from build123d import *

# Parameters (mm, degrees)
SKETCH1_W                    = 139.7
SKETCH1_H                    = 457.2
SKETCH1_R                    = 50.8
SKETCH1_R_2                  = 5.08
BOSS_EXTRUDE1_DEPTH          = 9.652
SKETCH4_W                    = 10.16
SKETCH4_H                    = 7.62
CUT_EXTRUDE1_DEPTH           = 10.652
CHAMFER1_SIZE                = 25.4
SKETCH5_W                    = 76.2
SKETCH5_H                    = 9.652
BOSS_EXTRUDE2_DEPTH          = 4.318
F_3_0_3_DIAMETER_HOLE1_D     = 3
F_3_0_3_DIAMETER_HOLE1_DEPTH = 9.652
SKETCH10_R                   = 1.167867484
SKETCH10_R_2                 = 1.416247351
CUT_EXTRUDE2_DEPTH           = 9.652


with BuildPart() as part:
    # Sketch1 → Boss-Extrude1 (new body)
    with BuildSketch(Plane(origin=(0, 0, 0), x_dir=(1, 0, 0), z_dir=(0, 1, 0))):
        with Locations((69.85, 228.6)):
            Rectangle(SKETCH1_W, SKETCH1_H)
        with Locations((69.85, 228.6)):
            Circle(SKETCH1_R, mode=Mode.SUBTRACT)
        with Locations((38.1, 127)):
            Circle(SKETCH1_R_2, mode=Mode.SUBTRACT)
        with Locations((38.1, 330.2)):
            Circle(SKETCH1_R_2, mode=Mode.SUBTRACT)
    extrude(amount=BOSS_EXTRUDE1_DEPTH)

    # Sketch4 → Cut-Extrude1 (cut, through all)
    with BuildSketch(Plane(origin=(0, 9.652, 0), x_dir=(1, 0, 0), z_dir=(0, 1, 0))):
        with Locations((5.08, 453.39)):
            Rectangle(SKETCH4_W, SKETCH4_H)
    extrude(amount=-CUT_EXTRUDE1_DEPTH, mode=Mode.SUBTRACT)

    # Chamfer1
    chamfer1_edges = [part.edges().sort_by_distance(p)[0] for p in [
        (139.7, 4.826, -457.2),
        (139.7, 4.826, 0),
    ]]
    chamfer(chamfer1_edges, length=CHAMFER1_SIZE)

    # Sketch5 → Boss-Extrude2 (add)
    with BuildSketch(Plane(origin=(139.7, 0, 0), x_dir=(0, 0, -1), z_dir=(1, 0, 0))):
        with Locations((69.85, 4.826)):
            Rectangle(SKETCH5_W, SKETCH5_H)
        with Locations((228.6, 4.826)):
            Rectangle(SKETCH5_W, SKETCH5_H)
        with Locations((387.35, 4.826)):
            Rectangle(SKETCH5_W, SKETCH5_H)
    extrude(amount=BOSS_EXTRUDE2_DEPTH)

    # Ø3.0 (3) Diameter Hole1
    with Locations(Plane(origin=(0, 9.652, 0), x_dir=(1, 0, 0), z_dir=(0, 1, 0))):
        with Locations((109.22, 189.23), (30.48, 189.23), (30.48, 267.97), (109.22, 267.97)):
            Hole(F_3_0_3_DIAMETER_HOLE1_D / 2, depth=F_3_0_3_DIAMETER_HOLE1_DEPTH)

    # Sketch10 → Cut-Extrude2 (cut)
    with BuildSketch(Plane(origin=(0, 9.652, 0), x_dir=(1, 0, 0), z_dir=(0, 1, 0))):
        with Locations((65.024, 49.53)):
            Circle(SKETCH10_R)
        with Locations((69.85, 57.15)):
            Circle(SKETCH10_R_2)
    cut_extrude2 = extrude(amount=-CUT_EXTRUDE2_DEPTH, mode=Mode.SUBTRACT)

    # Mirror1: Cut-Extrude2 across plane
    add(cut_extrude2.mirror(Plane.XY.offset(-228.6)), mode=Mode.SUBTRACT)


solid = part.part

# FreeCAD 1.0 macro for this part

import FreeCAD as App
import Part
import Sketcher

V = App.Vector
Q = App.Units.Quantity


def edges_at(feature, points):
    """Names of the edges that pass closest to the given points."""
    edges = feature.Shape.Edges
    near = lambda p: min(range(len(edges)), key=lambda i: edges[i].distToShape(Part.Vertex(*p))[0])
    return sorted({f"Edge{near(p) + 1}" for p in points})

doc = App.newDocument("Part")
params = doc.addObject("Spreadsheet::Sheet", "Params")
for row, (alias, value) in enumerate([
    ("sketch1_diameter", "4 in"),
    ("sketch1_diameter2", "0.4 in"),
    ("sketch1_height", "18 in"),
    ("sketch1_width", "5.5 in"),
    ("pad1_length", "0.38 in"),
    ("sketch2_width", "0.4 in"),
    ("sketch2_height", "0.3 in"),
    ("chamfer_size", "1 in"),
    ("sketch3_height", "3 in"),
    ("sketch3_width", "0.38 in"),
    ("pad2_length", "0.17 in"),
    ("hole_diameter", "3 mm"),
    ("hole_depth", "0.38 in"),
    ("pocket2_length", "0.38 in"),
], start=1):
    params.set(f"A{row}", alias)
    params.set(f"B{row}", "=" + value)
    params.setAlias(f"B{row}", alias)

body = doc.addObject("PartDesign::Body", "Body")

# Sketch on XZ plane
sketch1 = body.newObject("Sketcher::SketchObject", "Sketch")
sketch1.AttachmentSupport = (doc.getObject("XZ_Plane"), [""])
sketch1.MapMode = "FlatFace"
sketch1.addGeometry([
    Part.LineSegment(V(0, -457, 0), V(0, 0, 0)),  # 0
    Part.LineSegment(V(0, 0, 0), V(140, 0, 0)),  # 1
    Part.LineSegment(V(140, 0, 0), V(140, -457, 0)),  # 2
    Part.LineSegment(V(140, -457, 0), V(0, -457, 0)),  # 3
    Part.Circle(V(38, -127, 0), V(0, 0, 1), 5),  # 4
    Part.Circle(V(70, -229, 0), V(0, 0, 1), 51),  # 5
    Part.Circle(V(38, -330, 0), V(0, 0, 1), 5),  # 6
], False)
sketch1.addConstraint([
    Sketcher.Constraint("Coincident", 0, 2, 1, 1),
    Sketcher.Constraint("Coincident", 1, 2, 2, 1),
    Sketcher.Constraint("Coincident", 2, 2, 3, 1),
    Sketcher.Constraint("Coincident", 3, 2, 0, 1),
    Sketcher.Constraint("Vertical", 0),
    Sketcher.Constraint("Horizontal", 1),
    Sketcher.Constraint("Vertical", 2),
    Sketcher.Constraint("Horizontal", 3),
    Sketcher.Constraint("Coincident", 0, 2, -1, 1),
    Sketcher.Constraint("Equal", 4, 6),
    Sketcher.Constraint("Vertical", 4, 3, 6, 3),
    Sketcher.Constraint("Diameter", 5, Q("4 in")),
    Sketcher.Constraint("Diameter", 4, Q("0.4 in")),
    Sketcher.Constraint("DistanceY", 0, 1, 0, 2, Q("18 in")),
    Sketcher.Constraint("DistanceX", 1, 1, 1, 2, Q("5.5 in")),
    Sketcher.Constraint("DistanceY", 4, 3, -1, 1, Q("5 in")),
    Sketcher.Constraint("DistanceY", 5, 3, -1, 1, Q("9 in")),
    Sketcher.Constraint("DistanceY", 6, 3, -1, 1, Q("13 in")),
    Sketcher.Constraint("DistanceX", 4, 3, 1, 2, Q("4 in")),
    Sketcher.Constraint("DistanceX", -1, 1, 5, 3, Q("2.75 in")),
])
sketch1.setExpression("Constraints[11]", "Params.sketch1_diameter")
sketch1.setExpression("Constraints[12]", "Params.sketch1_diameter2")
sketch1.setExpression("Constraints[13]", "Params.sketch1_height")
sketch1.setExpression("Constraints[14]", "Params.sketch1_width")
pad1 = body.newObject("PartDesign::Pad", "Pad")
pad1.Profile = sketch1
pad1.setExpression("Length", "Params.pad1_length")
pad1.Reversed = True

# Sketch on XZ plane
sketch2 = body.newObject("Sketcher::SketchObject", "Sketch001")
sketch2.AttachmentSupport = (doc.getObject("XZ_Plane"), [""])
sketch2.MapMode = "FlatFace"
sketch2.AttachmentOffset = App.Placement(V(0, 0, -0.38 * 25.4), App.Rotation())
sketch2.addGeometry([
    Part.LineSegment(V(0, -457, 0), V(0, -450, 0)),
    Part.LineSegment(V(0, -450, 0), V(10, -450, 0)),
    Part.LineSegment(V(10, -450, 0), V(10, -457, 0)),
    Part.LineSegment(V(10, -457, 0), V(0, -457, 0)),
], False)
sketch2.addConstraint([
    Sketcher.Constraint("Coincident", 0, 2, 1, 1),
    Sketcher.Constraint("Coincident", 1, 2, 2, 1),
    Sketcher.Constraint("Coincident", 2, 2, 3, 1),
    Sketcher.Constraint("Coincident", 3, 2, 0, 1),
    Sketcher.Constraint("Vertical", 0),
    Sketcher.Constraint("Horizontal", 1),
    Sketcher.Constraint("Vertical", 2),
    Sketcher.Constraint("Horizontal", 3),
    Sketcher.Constraint("PointOnObject", 0, 2, -2),
    Sketcher.Constraint("DistanceX", 1, 1, 1, 2, Q("0.4 in")),
    Sketcher.Constraint("DistanceY", 0, 1, 0, 2, Q("0.3 in")),
    Sketcher.Constraint("DistanceY", 2, 2, -1, 1, Q("18 in")),
])
sketch2.setExpression("Constraints[9]", "Params.sketch2_width")
sketch2.setExpression("Constraints[10]", "Params.sketch2_height")
pocket1 = body.newObject("PartDesign::Pocket", "Pocket")
pocket1.Profile = sketch2
pocket1.Type = "ThroughAll"
pocket1.Reversed = True
doc.recompute()

chamfer = body.newObject("PartDesign::Chamfer", "Chamfer")
chamfer.Base = (pocket1, edges_at(pocket1, [(139.7, 4.826, -457.2), (139.7, 4.826, 0)]))
chamfer.setExpression("Size", "Params.chamfer_size")

# Sketch on YZ plane
sketch3 = body.newObject("Sketcher::SketchObject", "Sketch002")
sketch3.AttachmentSupport = (doc.getObject("YZ_Plane"), [""])
sketch3.MapMode = "FlatFace"
sketch3.AttachmentOffset = App.Placement(V(0, 0, 5.5 * 25.4), App.Rotation())
sketch3.addGeometry([
    Part.LineSegment(V(10, -32, 0), V(0, -32, 0)),  # 0
    Part.LineSegment(V(0, -32, 0), V(0, -108, 0)),  # 1
    Part.LineSegment(V(0, -108, 0), V(10, -108, 0)),  # 2
    Part.LineSegment(V(10, -108, 0), V(10, -32, 0)),  # 3
    Part.LineSegment(V(10, -190, 0), V(0, -190, 0)),  # 4
    Part.LineSegment(V(0, -190, 0), V(0, -267, 0)),  # 5
    Part.LineSegment(V(0, -267, 0), V(10, -267, 0)),  # 6
    Part.LineSegment(V(10, -267, 0), V(10, -190, 0)),  # 7
    Part.LineSegment(V(10, -349, 0), V(0, -349, 0)),  # 8
    Part.LineSegment(V(0, -349, 0), V(0, -425, 0)),  # 9
    Part.LineSegment(V(0, -425, 0), V(10, -425, 0)),  # 10
    Part.LineSegment(V(10, -425, 0), V(10, -349, 0)),  # 11
], False)
sketch3.addConstraint([
    Sketcher.Constraint("Coincident", 0, 2, 1, 1),
    Sketcher.Constraint("Coincident", 1, 2, 2, 1),
    Sketcher.Constraint("Coincident", 2, 2, 3, 1),
    Sketcher.Constraint("Coincident", 3, 2, 0, 1),
    Sketcher.Constraint("Coincident", 4, 2, 5, 1),
    Sketcher.Constraint("Coincident", 5, 2, 6, 1),
    Sketcher.Constraint("Coincident", 6, 2, 7, 1),
    Sketcher.Constraint("Coincident", 7, 2, 4, 1),
    Sketcher.Constraint("Coincident", 8, 2, 9, 1),
    Sketcher.Constraint("Coincident", 9, 2, 10, 1),
    Sketcher.Constraint("Coincident", 10, 2, 11, 1),
    Sketcher.Constraint("Coincident", 11, 2, 8, 1),
    Sketcher.Constraint("Horizontal", 0),
    Sketcher.Constraint("Vertical", 1),
    Sketcher.Constraint("Horizontal", 2),
    Sketcher.Constraint("Vertical", 3),
    Sketcher.Constraint("Horizontal", 4),
    Sketcher.Constraint("Vertical", 5),
    Sketcher.Constraint("Horizontal", 6),
    Sketcher.Constraint("Vertical", 7),
    Sketcher.Constraint("Horizontal", 8),
    Sketcher.Constraint("Vertical", 9),
    Sketcher.Constraint("Horizontal", 10),
    Sketcher.Constraint("Vertical", 11),
    Sketcher.Constraint("PointOnObject", 0, 2, -2),
    Sketcher.Constraint("PointOnObject", 4, 2, -2),
    Sketcher.Constraint("PointOnObject", 8, 2, -2),
    Sketcher.Constraint("Vertical", 3, 2, 6, 2),
    Sketcher.Constraint("Vertical", 7, 2, 10, 2),
    Sketcher.Constraint("Equal", 3, 5),
    Sketcher.Constraint("Equal", 7, 9),
    Sketcher.Constraint("DistanceY", 1, 2, 1, 1, Q("3 in")),
    Sketcher.Constraint("DistanceX", 0, 2, 0, 1, Q("0.38 in")),
    Sketcher.Constraint("DistanceY", 4, 2, -1, 1, Q("7.5 in")),
    Sketcher.Constraint("DistanceY", 8, 2, 1, 2, Q("9.5 in")),
    Sketcher.Constraint("DistanceY", 0, 2, -1, 1, Q("1.25 in")),
])
sketch3.setExpression("Constraints[31]", "Params.sketch3_height")
sketch3.setExpression("Constraints[32]", "Params.sketch3_width")
pad2 = body.newObject("PartDesign::Pad", "Pad001")
pad2.Profile = sketch3
pad2.setExpression("Length", "Params.pad2_length")

# Sketch on XZ plane
sketch4 = body.newObject("Sketcher::SketchObject", "Sketch003")
sketch4.AttachmentSupport = (doc.getObject("XZ_Plane"), [""])
sketch4.MapMode = "FlatFace"
sketch4.AttachmentOffset = App.Placement(V(0, 0, -0.38 * 25.4), App.Rotation())
sketch4.addGeometry([
    Part.Circle(V(109.2, -189.2, 0), V(0, 0, 1), 1.5),
    Part.Circle(V(30.5, -189.2, 0), V(0, 0, 1), 1.5),
    Part.Circle(V(30.5, -268, 0), V(0, 0, 1), 1.5),
    Part.Circle(V(109.2, -268, 0), V(0, 0, 1), 1.5),
], False)
sketch4.addConstraint([
    Sketcher.Constraint("Equal", 0, 1),
    Sketcher.Constraint("Equal", 1, 2),
    Sketcher.Constraint("Equal", 2, 3),
    Sketcher.Constraint("Horizontal", 0, 3, 1, 3),
    Sketcher.Constraint("Horizontal", 2, 3, 3, 3),
    Sketcher.Constraint("Vertical", 1, 3, 2, 3),
    Sketcher.Constraint("Vertical", 0, 3, 3, 3),
    Sketcher.Constraint("DistanceX", -1, 1, 0, 3, Q("4.3 in")),
    Sketcher.Constraint("DistanceX", -1, 1, 1, 3, Q("1.2 in")),
    Sketcher.Constraint("DistanceY", 2, 3, 1, 3, Q("3.1 in")),
    Sketcher.Constraint("Diameter", 0, Q("3 mm")),
    Sketcher.Constraint("DistanceY", 0, 3, -1, 1, Q("7.45 in")),
])
doc.recompute()
hole = body.newObject("PartDesign::Hole", "Hole")
hole.Profile = sketch4
hole.ThreadType = "None"
hole.setExpression("Diameter", "Params.hole_diameter")
hole.DepthType = "Dimension"
hole.setExpression("Depth", "Params.hole_depth")
hole.DrillPoint = "Flat"
hole.Reversed = True

# Sketch on XZ plane
sketch5 = body.newObject("Sketcher::SketchObject", "Sketch004")
sketch5.AttachmentSupport = (doc.getObject("XZ_Plane"), [""])
sketch5.MapMode = "FlatFace"
sketch5.AttachmentOffset = App.Placement(V(0, 0, -0.38 * 25.4), App.Rotation())
sketch5.addGeometry([
    Part.Circle(V(65, -49.5, 0), V(0, 0, 1), 1.2),
    Part.Circle(V(69.8, -57.1, 0), V(0, 0, 1), 1.4),
], False)
sketch5.addConstraint([
    Sketcher.Constraint("DistanceY", 1, 3, 0, 3, Q("0.3 in")),
    Sketcher.Constraint("DistanceX", -1, 1, 0, 3, Q("2.56 in")),
    Sketcher.Constraint("DistanceY", 0, 3, -1, 1, Q("1.95 in")),
    Sketcher.Constraint("DistanceX", -1, 1, 1, 3, Q("2.75 in")),
    Sketcher.Constraint("Diameter", 0, Q("2.335735 mm")),
    Sketcher.Constraint("Diameter", 1, Q("2.832495 mm")),
])
pocket2 = body.newObject("PartDesign::Pocket", "Pocket001")
pocket2.Profile = sketch5
pocket2.setExpression("Length", "Params.pocket2_length")
pocket2.Reversed = True
doc.recompute()

datumplane = body.newObject("PartDesign::Plane", "DatumPlane")
datumplane.AttachmentSupport = (doc.getObject("XY_Plane"), [""])
datumplane.MapMode = "FlatFace"
datumplane.AttachmentOffset = App.Placement(V(0, 0, -9 * 25.4), App.Rotation())
mirrored = body.newObject("PartDesign::Mirrored", "Mirrored")
mirrored.Originals = [pocket2]
mirrored.MirrorPlane = (datumplane, [""])
body.Tip = mirrored

doc.recompute()
